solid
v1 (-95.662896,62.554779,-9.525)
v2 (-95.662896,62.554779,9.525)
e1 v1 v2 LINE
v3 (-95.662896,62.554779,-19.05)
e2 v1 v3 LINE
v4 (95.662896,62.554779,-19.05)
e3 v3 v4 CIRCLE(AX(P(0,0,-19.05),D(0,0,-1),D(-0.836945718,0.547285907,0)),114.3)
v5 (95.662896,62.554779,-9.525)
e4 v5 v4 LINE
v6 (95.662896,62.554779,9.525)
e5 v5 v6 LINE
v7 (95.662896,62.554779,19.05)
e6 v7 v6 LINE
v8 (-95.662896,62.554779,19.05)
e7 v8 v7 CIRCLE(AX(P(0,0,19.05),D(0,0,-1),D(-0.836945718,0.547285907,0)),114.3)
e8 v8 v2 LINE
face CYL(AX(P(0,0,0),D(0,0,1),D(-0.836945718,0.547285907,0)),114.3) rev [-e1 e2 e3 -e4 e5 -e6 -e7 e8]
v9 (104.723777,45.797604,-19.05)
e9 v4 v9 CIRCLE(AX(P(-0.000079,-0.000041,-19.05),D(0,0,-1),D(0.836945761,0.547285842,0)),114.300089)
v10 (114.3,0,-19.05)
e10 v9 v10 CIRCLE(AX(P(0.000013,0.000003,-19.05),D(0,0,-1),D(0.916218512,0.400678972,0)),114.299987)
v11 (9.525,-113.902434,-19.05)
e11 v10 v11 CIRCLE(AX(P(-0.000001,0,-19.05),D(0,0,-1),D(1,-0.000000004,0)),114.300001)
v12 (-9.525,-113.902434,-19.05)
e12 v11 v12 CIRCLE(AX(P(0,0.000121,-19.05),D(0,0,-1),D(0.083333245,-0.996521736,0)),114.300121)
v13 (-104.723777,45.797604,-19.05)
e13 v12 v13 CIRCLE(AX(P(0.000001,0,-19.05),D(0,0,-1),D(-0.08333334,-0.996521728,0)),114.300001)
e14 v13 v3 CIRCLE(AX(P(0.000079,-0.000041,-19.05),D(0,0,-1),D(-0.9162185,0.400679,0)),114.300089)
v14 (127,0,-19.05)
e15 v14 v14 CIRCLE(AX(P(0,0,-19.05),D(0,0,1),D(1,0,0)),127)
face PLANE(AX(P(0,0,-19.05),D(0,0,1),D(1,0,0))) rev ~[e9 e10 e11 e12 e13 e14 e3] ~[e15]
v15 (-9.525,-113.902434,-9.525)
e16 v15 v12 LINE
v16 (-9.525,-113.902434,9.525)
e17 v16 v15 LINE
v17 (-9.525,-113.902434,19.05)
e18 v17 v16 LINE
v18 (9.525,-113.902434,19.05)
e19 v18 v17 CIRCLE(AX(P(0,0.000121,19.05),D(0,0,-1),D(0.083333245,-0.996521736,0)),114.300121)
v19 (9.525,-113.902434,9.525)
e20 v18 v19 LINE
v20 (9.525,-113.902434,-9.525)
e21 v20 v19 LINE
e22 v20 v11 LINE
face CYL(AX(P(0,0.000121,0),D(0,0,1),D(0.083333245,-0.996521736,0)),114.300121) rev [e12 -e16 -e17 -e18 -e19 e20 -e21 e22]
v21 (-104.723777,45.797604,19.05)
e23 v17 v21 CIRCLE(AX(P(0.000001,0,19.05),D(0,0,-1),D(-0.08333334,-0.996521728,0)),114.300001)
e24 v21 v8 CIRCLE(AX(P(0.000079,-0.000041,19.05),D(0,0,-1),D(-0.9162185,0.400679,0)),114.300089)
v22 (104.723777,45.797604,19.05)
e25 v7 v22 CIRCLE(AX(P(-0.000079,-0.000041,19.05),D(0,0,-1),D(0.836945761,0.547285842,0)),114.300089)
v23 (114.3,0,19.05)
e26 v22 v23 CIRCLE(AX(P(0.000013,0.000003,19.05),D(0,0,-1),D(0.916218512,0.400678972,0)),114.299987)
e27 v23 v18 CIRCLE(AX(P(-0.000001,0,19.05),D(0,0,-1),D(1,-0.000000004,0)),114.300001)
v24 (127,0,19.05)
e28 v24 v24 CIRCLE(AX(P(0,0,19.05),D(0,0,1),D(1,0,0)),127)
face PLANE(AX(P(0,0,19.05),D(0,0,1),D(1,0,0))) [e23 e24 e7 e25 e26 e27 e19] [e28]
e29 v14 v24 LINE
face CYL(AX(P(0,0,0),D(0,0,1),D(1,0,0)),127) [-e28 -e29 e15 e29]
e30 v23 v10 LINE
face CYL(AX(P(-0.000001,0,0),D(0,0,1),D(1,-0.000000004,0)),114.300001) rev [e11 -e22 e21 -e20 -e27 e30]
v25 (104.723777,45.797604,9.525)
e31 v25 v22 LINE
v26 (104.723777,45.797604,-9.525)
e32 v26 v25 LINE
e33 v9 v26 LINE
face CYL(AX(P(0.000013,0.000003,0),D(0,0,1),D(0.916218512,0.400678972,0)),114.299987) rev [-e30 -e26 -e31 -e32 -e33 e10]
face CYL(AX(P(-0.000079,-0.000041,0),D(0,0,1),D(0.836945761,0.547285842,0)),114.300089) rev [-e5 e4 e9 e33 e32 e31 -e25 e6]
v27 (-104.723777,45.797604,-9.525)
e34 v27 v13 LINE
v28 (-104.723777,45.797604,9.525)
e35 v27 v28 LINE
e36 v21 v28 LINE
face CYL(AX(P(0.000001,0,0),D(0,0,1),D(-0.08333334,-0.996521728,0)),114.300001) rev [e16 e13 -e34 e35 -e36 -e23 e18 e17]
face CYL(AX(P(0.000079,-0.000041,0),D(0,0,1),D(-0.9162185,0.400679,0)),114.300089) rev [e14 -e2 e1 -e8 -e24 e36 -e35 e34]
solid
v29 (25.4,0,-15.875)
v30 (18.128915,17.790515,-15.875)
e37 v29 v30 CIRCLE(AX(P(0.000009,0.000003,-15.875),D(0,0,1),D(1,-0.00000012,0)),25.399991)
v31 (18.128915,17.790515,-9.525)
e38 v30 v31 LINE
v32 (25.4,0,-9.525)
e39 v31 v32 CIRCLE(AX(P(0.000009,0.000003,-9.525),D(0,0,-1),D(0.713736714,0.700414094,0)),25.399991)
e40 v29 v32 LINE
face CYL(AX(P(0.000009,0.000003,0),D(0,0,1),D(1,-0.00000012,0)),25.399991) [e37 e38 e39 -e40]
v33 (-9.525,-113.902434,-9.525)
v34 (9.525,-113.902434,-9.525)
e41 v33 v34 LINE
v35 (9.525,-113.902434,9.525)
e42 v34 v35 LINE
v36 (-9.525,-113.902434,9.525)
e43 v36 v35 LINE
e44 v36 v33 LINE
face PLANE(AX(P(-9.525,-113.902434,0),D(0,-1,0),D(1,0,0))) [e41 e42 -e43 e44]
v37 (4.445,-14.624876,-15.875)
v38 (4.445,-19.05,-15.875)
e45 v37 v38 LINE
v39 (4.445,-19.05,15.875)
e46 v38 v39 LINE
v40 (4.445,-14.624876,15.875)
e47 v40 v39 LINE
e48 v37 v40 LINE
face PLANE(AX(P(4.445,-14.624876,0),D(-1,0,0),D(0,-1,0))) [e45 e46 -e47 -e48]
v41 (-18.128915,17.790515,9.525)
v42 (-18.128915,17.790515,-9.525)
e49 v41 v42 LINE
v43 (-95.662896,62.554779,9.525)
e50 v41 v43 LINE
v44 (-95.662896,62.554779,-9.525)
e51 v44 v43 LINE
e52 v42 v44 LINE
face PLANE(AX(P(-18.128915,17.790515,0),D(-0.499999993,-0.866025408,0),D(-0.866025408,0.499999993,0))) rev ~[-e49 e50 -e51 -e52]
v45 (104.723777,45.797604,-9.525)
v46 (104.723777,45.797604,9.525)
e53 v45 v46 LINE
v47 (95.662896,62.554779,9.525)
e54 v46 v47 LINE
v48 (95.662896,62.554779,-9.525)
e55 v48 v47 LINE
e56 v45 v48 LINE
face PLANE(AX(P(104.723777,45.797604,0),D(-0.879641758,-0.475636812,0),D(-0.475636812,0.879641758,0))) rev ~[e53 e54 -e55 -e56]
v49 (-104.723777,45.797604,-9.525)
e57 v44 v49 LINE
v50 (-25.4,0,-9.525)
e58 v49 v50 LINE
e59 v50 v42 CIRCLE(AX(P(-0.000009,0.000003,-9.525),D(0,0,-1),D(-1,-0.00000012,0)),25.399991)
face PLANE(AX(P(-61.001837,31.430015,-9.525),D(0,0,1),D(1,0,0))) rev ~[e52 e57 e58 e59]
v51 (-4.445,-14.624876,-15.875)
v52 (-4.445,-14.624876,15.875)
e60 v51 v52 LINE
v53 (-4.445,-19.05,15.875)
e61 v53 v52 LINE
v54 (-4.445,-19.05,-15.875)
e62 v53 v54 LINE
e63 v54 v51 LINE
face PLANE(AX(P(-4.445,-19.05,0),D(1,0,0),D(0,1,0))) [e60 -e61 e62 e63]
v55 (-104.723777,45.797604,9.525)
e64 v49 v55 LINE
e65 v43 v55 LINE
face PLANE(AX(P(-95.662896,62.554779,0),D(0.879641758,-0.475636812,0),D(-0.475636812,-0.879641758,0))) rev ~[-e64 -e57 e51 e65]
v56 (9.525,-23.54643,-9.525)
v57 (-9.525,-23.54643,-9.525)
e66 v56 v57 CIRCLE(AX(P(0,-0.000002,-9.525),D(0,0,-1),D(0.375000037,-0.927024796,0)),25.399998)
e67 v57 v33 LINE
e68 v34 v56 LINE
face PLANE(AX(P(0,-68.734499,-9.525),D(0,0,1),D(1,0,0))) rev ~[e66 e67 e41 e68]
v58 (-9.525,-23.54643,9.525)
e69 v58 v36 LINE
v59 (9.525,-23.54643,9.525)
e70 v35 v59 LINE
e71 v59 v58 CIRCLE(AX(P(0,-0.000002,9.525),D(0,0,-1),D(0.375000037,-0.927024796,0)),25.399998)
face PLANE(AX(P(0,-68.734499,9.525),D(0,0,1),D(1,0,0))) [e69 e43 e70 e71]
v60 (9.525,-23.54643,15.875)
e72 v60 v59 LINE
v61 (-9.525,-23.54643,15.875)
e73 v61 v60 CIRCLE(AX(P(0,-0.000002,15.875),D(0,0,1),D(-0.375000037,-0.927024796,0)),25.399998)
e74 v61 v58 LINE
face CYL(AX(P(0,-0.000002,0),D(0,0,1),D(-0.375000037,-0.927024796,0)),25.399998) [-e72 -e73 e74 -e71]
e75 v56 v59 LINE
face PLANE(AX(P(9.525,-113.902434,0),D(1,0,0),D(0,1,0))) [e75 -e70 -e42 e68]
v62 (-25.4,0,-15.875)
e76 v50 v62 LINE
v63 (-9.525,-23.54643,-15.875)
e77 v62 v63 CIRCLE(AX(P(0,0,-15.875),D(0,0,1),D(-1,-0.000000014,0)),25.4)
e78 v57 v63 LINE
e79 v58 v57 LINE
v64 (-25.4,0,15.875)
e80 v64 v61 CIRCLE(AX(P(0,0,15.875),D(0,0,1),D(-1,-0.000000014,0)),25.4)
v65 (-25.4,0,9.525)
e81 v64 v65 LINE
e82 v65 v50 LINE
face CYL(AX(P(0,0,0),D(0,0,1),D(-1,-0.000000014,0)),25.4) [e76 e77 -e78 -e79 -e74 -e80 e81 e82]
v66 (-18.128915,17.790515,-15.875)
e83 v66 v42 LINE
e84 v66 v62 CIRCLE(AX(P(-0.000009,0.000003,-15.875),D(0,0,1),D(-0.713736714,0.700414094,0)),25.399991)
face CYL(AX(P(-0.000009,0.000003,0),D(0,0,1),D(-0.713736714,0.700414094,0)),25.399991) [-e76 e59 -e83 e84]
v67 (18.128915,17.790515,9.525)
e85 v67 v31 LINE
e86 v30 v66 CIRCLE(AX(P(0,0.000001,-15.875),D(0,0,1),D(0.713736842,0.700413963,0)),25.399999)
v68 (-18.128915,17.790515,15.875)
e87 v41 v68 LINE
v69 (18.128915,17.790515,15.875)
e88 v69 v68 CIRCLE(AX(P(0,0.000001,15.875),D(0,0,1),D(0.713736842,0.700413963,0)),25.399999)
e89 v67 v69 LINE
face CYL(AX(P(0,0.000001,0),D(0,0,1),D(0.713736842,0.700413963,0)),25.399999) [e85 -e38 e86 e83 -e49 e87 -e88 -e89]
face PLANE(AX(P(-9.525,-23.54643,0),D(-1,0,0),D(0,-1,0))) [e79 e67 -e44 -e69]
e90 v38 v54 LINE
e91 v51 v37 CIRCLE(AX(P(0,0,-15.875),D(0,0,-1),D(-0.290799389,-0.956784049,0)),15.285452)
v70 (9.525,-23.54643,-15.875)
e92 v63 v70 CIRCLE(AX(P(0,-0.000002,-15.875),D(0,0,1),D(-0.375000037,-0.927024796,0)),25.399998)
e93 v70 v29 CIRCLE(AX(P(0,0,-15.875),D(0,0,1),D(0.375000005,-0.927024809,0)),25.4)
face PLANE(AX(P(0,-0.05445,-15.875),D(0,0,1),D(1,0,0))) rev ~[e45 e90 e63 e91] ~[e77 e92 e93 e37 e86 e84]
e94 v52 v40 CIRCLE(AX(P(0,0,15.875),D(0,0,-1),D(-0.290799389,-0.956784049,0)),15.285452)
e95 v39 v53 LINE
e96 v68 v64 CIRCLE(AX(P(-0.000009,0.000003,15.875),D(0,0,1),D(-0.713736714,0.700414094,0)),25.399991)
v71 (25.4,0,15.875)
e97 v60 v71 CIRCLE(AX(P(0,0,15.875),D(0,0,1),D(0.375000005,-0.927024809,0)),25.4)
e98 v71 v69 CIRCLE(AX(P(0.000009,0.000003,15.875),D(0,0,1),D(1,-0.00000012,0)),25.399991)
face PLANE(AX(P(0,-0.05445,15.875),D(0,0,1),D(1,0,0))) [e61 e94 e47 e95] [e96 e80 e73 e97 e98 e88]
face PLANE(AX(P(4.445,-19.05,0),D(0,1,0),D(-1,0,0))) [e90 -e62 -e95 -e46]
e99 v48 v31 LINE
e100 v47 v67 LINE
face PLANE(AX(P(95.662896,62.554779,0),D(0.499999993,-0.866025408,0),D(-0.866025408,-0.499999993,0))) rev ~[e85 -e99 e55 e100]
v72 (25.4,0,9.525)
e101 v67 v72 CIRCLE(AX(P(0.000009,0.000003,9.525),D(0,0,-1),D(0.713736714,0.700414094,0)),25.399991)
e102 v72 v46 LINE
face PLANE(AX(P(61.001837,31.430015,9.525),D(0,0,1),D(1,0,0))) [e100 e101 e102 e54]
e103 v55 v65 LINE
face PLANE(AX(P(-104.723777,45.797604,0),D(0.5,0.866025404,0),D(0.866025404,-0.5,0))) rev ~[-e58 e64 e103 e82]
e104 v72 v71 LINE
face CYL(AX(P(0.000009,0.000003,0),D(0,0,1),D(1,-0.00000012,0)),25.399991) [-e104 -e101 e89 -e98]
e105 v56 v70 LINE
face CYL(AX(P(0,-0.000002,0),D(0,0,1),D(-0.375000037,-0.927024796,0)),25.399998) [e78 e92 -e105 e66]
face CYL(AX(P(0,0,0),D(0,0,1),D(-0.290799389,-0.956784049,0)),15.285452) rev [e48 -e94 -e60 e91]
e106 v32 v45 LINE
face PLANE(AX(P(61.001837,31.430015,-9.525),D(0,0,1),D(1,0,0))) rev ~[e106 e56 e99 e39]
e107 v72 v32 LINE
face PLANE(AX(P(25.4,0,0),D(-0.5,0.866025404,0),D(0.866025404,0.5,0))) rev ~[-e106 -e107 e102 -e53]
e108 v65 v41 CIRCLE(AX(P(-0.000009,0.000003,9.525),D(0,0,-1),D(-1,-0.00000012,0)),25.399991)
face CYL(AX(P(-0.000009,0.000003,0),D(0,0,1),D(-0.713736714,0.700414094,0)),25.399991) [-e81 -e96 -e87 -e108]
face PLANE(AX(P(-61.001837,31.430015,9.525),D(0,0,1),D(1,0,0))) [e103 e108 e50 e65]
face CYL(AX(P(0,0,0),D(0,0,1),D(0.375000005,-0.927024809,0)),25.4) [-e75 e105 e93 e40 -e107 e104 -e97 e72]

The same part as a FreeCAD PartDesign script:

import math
import FreeCAD as App
import Part
import Sketcher
from FreeCAD import Vector
Q = App.Units.Quantity

doc = App.newDocument("Part")
body = doc.addObject("PartDesign::Body", "Body")

# Sketch on XY plane
sketch1 = doc.addObject("Sketcher::SketchObject", "Sketch")
body.addObject(sketch1)
sketch1.AttachmentSupport = (doc.XY_Plane, [""])
sketch1.MapMode = "FlatFace"
sketch1.addGeometry([
    Part.Circle(Vector(0, 0, 0), Vector(0, 0, 1), 127),  # 0
    Part.ArcOfCircle(Part.Circle(Vector(-0.000079, -0.000041, 0), Vector(0, 0, 1), 114.300089), math.radians(23.620633), math.radians(33.181009)),  # 1
    Part.ArcOfCircle(Part.Circle(Vector(0.000013, 0.000003, 0), Vector(0, 0, 1), 114.299987), math.radians(-0.000001), math.radians(23.620631)),  # 2
    Part.ArcOfCircle(Part.Circle(Vector(-0.000001, 0, 0), Vector(0, 0, 1), 114.300001), math.radians(-85.219808), math.radians(0)),  # 3
    Part.ArcOfCircle(Part.Circle(Vector(0, 0.000121, 0), Vector(0, 0, 1), 114.300121), math.radians(-94.780187), math.radians(-85.219813)),  # 4
    Part.ArcOfCircle(Part.Circle(Vector(0.000001, 0, 0), Vector(0, 0, 1), 114.300001), math.radians(156.37937), math.radians(265.219808)),  # 5
    Part.ArcOfCircle(Part.Circle(Vector(0.000079, -0.000041, 0), Vector(0, 0, 1), 114.300089), math.radians(146.818991), math.radians(156.379367)),  # 6
    Part.ArcOfCircle(Part.Circle(Vector(0, 0, 0), Vector(0, 0, 1), 114.3), math.radians(33.181013), math.radians(146.818987)),  # 7
], False)
sketch1.addConstraint([
    Sketcher.Constraint("Coincident", 1, 1, 2, 2),
    Sketcher.Constraint("Coincident", 2, 1, 3, 2),
    Sketcher.Constraint("Coincident", 3, 1, 4, 2),
    Sketcher.Constraint("Coincident", 4, 1, 5, 2),
    Sketcher.Constraint("Coincident", 5, 1, 6, 2),
    Sketcher.Constraint("Coincident", 6, 1, 7, 2),
    Sketcher.Constraint("Coincident", 7, 1, 1, 2),
    Sketcher.Constraint("Coincident", 0, 3, -1, 1),
    Sketcher.Constraint("Coincident", 3, 3, -1, 1),
    Sketcher.Constraint("Coincident", 5, 3, -1, 1),
    Sketcher.Constraint("Coincident", 7, 3, -1, 1),
    Sketcher.Constraint("PointOnObject", 4, 3, -2),
    Sketcher.Constraint("PointOnObject", 2, 1, -1),
    Sketcher.Constraint("Diameter", 0, Q("10 in")),
    Sketcher.Constraint("Radius", 3, Q("4.5 in")),
    Sketcher.Constraint("Radius", 7, Q("4.5 in")),
    Sketcher.Constraint("DistanceX", 4, 1, 3, 1, Q("0.75 in")),
    Sketcher.Constraint("DistanceX", -1, 1, 3, 1, Q("0.375 in")),
    Sketcher.Constraint("Radius", 1, 114.300089),
    Sketcher.Constraint("Radius", 4, 114.300121),
    Sketcher.Constraint("Radius", 6, 114.300089),
    Sketcher.Constraint("Radius", 2, 114.299987),
    Sketcher.Constraint("DistanceX", 6, 3, 1, 1, 104.723698),
    Sketcher.Constraint("DistanceX", 5, 1, 1, 3, 104.723698),
    Sketcher.Constraint("DistanceY", -1, 1, 6, 1, 62.554779),
    Sketcher.Constraint("DistanceY", -1, 1, 7, 1, 62.554779),
    Sketcher.Constraint("DistanceY", 2, 3, 4, 3, 0.000118),
])
pad1 = doc.addObject("PartDesign::Pad", "Pad")
body.addObject(pad1)
pad1.Profile = sketch1
pad1.Length = Q("1.5 in")
pad1.Midplane = True
body2 = doc.addObject("PartDesign::Body", "Body001")

# Sketch on XY plane
sketch2 = doc.addObject("Sketcher::SketchObject", "Sketch001")
body2.addObject(sketch2)
sketch2.AttachmentSupport = (doc.getObject("XY_Plane001"), [""])
sketch2.MapMode = "FlatFace"
sketch2.addGeometry([
    Part.ArcOfCircle(Part.Circle(Vector(0, 0, 0), Vector(0, 0, 1), 25.4), math.radians(-68), math.radians(0)),  # 0
    Part.ArcOfCircle(Part.Circle(Vector(0, 0, 0), Vector(0, 0, 1), 25.4), math.radians(0), math.radians(44)),  # 1
    Part.ArcOfCircle(Part.Circle(Vector(0, 0, 0), Vector(0, 0, 1), 25.4), math.radians(44), math.radians(136)),  # 2
    Part.ArcOfCircle(Part.Circle(Vector(0, 0, 0), Vector(0, 0, 1), 25.4), math.radians(136), math.radians(180)),  # 3
    Part.ArcOfCircle(Part.Circle(Vector(0, 0, 0), Vector(0, 0, 1), 25.4), math.radians(-180), math.radians(-112)),  # 4
    Part.ArcOfCircle(Part.Circle(Vector(0, 0, 0), Vector(0, 0, 1), 25.4), math.radians(-112), math.radians(-68)),  # 5
    Part.LineSegment(Vector(-4.4, -19.1, 0), Vector(-4.4, -14.6, 0)),  # 6
    Part.ArcOfCircle(Part.Circle(Vector(0, 0, 0), Vector(0, 0, 1), 15.3), math.radians(-73), math.radians(253)),  # 7
    Part.LineSegment(Vector(4.4, -14.6, 0), Vector(4.4, -19.1, 0)),  # 8
    Part.LineSegment(Vector(4.4, -19.1, 0), Vector(-4.4, -19.1, 0)),  # 9
], False)
sketch2.addConstraint([
    Sketcher.Constraint("Tangent", 0, 2, 1, 1),
    Sketcher.Constraint("Tangent", 1, 2, 2, 1),
    Sketcher.Constraint("Tangent", 2, 2, 3, 1),
    Sketcher.Constraint("Tangent", 3, 2, 4, 1),
    Sketcher.Constraint("Tangent", 4, 2, 5, 1),
    Sketcher.Constraint("Tangent", 5, 2, 0, 1),
    Sketcher.Constraint("Coincident", 6, 2, 7, 2),
    Sketcher.Constraint("Coincident", 7, 1, 8, 1),
    Sketcher.Constraint("Coincident", 8, 2, 9, 1),
    Sketcher.Constraint("Coincident", 9, 2, 6, 1),
    Sketcher.Constraint("Vertical", 6),
    Sketcher.Constraint("Vertical", 8),
    Sketcher.Constraint("Horizontal", 9),
    Sketcher.Constraint("Coincident", 0, 3, -1, 1),
    Sketcher.Constraint("Coincident", 2, 3, -1, 1),
    Sketcher.Constraint("Coincident", 7, 3, -1, 1),
    Sketcher.Constraint("Equal", 1, 3),
    Sketcher.Constraint("PointOnObject", 0, 2, -1),
    Sketcher.Constraint("PointOnObject", 3, 2, -1),
    Sketcher.Constraint("Horizontal", 1, 2, 2, 2),
    Sketcher.Constraint("Horizontal", 4, 2, 5, 2),
    Sketcher.Constraint("Horizontal", 6, 2, 7, 1),
    Sketcher.Constraint("Radius", 0, Q("1 in")),
    Sketcher.Constraint("DistanceX", 9, 2, 9, 1, Q("0.35 in")),
    Sketcher.Constraint("DistanceX", 4, 2, 6, 2, Q("0.2 in")),
    Sketcher.Constraint("DistanceY", 8, 2, -1, 1, Q("0.75 in")),
    Sketcher.Constraint("Radius", 7, 15.285452),
    Sketcher.Constraint("DistanceY", 1, 3, 1, 2, 17.790512),
])
pad2 = doc.addObject("PartDesign::Pad", "Pad001")
body2.addObject(pad2)
pad2.Profile = sketch2
pad2.Length = Q("1.25 in")
pad2.Midplane = True
body.AllowCompound = True
doc.recompute()

boolean = doc.addObject("PartDesign::Boolean", "Boolean")
body.addObject(boolean)
boolean.Type = "Fuse"
boolean.addObjects([body2])

# Sketch on XY plane
sketch3 = doc.addObject("Sketcher::SketchObject", "Sketch002")
body.addObject(sketch3)
sketch3.AttachmentSupport = (doc.XY_Plane, [""])
sketch3.MapMode = "FlatFace"
sketch3.addGeometry([
    Part.LineSegment(Vector(-18, 18, 0), Vector(-96, 63, 0)),  # 0
    Part.LineSegment(Vector(-96, 63, 0), Vector(-105, 46, 0)),  # 1
    Part.LineSegment(Vector(-105, 46, 0), Vector(-25, 0, 0)),  # 2
    Part.ArcOfCircle(Part.Circle(Vector(0, 0, 0), Vector(0, 0, 1), 25), math.radians(136), math.radians(180)),  # 3
    Part.LineSegment(Vector(25, 0, 0), Vector(105, 46, 0)),  # 4
    Part.LineSegment(Vector(105, 46, 0), Vector(96, 63, 0)),  # 5
    Part.LineSegment(Vector(96, 63, 0), Vector(18, 18, 0)),  # 6
    Part.ArcOfCircle(Part.Circle(Vector(0, 0, 0), Vector(0, 0, 1), 25), math.radians(0), math.radians(44)),  # 7
    Part.LineSegment(Vector(-10, -114, 0), Vector(10, -114, 0)),  # 8
    Part.LineSegment(Vector(10, -114, 0), Vector(10, -24, 0)),  # 9
    Part.ArcOfCircle(Part.Circle(Vector(0, 0, 0), Vector(0, 0, 1), 25), math.radians(-112), math.radians(-68)),  # 10
    Part.LineSegment(Vector(-10, -24, 0), Vector(-10, -114, 0)),  # 11
], False)
sketch3.addConstraint([
    Sketcher.Constraint("Coincident", 0, 2, 1, 1),
    Sketcher.Constraint("Coincident", 1, 2, 2, 1),
    Sketcher.Constraint("Coincident", 2, 2, 3, 2),
    Sketcher.Constraint("Coincident", 3, 1, 0, 1),
    Sketcher.Constraint("Coincident", 4, 2, 5, 1),
    Sketcher.Constraint("Coincident", 5, 2, 6, 1),
    Sketcher.Constraint("Coincident", 6, 2, 7, 2),
    Sketcher.Constraint("Coincident", 7, 1, 4, 1),
    Sketcher.Constraint("Coincident", 8, 2, 9, 1),
    Sketcher.Constraint("Coincident", 9, 2, 10, 2),
    Sketcher.Constraint("Coincident", 10, 1, 11, 1),
    Sketcher.Constraint("Coincident", 11, 2, 8, 1),
    Sketcher.Constraint("Horizontal", 8),
    Sketcher.Constraint("Vertical", 9),
    Sketcher.Constraint("Vertical", 11),
    Sketcher.Constraint("Coincident", 3, 3, -1, 1),
    Sketcher.Constraint("Coincident", 7, 3, -1, 1),
    Sketcher.Constraint("Coincident", 10, 3, -1, 1),
    Sketcher.Constraint("Equal", 3, 7),
    Sketcher.Constraint("Symmetric", 1, 2, 4, 2, -2),
    Sketcher.Constraint("Symmetric", 0, 2, 5, 2, -2),
    Sketcher.Constraint("PointOnObject", 2, 2, -1),
    Sketcher.Constraint("PointOnObject", 7, 1, -1),
    Sketcher.Constraint("Parallel", 0, 2),
    Sketcher.Constraint("Parallel", 4, 6),
    Sketcher.Constraint("Horizontal", 9, 2, 10, 1),
    Sketcher.Constraint("Radius", 10, Q("0.9999999 in")),
    Sketcher.Constraint("DistanceX", 2, 2, -1, 1, Q("1 in")),
    Sketcher.Constraint("Angle", 0, Q("150 deg")),
    Sketcher.Constraint("DistanceX", 8, 1, 8, 2, Q("0.75 in")),
    Sketcher.Constraint("Distance", 1, Q("0.75 in")),
    Sketcher.Constraint("DistanceY", 3, 3, 1, 2, 45.797601),
    Sketcher.Constraint("Distance", 0, 89.528529),
    Sketcher.Constraint("DistanceY", 9, 1, 9, 2, 90.356004),
])
pad3 = doc.addObject("PartDesign::Pad", "Pad002")
body.addObject(pad3)
pad3.Profile = sketch3
pad3.Length = Q("0.75 in")
pad3.Midplane = True

doc.recompute()
